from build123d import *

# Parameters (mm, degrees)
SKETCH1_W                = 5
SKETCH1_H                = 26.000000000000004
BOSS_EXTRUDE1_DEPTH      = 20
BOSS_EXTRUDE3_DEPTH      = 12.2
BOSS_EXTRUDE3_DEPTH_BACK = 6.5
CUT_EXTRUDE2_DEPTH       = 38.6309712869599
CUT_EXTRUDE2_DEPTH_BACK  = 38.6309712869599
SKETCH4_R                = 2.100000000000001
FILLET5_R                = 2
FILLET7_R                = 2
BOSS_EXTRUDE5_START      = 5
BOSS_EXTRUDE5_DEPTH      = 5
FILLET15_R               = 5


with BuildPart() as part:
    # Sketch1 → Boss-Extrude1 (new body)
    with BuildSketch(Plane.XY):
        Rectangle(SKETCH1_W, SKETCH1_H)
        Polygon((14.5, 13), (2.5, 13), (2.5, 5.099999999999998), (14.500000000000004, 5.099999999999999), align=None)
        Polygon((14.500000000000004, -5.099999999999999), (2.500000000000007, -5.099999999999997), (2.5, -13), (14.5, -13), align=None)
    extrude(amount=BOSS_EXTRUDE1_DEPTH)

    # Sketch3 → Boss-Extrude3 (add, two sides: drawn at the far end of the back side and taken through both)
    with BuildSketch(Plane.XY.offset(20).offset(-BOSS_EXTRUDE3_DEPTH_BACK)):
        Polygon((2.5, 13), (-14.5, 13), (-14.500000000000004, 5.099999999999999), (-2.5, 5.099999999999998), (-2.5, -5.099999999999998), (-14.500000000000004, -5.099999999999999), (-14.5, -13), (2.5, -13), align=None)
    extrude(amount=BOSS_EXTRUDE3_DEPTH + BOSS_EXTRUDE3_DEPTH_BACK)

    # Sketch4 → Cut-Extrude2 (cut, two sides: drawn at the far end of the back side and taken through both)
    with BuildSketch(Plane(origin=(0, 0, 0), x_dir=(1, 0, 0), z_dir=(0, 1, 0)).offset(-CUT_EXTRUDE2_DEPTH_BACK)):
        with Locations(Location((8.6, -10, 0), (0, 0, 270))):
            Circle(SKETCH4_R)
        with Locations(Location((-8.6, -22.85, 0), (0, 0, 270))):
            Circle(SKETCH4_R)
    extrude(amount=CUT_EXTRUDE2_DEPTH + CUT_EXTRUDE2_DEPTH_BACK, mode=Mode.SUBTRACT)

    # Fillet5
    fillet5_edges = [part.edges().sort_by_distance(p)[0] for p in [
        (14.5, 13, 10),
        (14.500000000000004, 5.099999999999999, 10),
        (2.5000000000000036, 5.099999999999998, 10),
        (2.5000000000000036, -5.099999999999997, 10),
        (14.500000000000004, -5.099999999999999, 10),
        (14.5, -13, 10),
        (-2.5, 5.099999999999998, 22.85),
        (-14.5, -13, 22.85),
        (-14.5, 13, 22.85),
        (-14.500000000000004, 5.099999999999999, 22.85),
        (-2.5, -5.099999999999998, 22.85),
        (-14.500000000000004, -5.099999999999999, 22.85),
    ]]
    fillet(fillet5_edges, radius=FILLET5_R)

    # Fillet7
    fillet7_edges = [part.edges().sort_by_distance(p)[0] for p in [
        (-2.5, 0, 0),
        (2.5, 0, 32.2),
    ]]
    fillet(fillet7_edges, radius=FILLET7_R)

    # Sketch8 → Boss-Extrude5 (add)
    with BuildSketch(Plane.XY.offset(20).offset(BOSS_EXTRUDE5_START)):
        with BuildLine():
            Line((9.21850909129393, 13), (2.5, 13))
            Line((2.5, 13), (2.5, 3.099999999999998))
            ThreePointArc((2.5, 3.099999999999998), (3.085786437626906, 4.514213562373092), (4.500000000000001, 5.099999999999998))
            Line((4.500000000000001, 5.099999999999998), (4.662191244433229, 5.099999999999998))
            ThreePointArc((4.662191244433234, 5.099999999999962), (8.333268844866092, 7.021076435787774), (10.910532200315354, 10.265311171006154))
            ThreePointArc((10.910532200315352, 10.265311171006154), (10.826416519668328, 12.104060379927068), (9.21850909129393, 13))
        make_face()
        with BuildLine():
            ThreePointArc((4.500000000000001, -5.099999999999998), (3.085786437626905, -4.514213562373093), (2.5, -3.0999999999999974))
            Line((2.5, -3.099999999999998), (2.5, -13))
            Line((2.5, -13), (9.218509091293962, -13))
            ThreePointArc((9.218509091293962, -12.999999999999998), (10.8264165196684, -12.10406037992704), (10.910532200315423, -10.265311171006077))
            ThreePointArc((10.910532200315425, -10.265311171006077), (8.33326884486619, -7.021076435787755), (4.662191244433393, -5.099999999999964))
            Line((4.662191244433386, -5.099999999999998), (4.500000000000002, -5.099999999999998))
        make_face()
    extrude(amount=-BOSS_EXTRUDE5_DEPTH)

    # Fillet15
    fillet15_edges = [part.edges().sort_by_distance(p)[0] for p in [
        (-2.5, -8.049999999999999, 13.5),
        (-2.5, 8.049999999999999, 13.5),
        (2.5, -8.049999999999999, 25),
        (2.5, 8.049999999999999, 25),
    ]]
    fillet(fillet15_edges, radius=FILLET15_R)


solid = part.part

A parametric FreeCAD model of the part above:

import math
import FreeCAD as App
import Part
import Sketcher


def edges_at(feature, points):
    """Names of the edges that pass closest to the given points."""
    edges = feature.Shape.Edges
    near = lambda p: min(range(len(edges)), key=lambda i: edges[i].distToShape(Part.Vertex(*p))[0])
    return sorted({f"Edge{near(p) + 1}" for p in points})


def add_polygon(sketch, points):
    """Adds a closed chain of lines whose ends are joined by coincident constraints."""
    first, n = sketch.GeometryCount, len(points)
    for a, b in zip(points, points[1:] + points[:1]):
        sketch.addGeometry(Part.LineSegment(App.Vector(*a, 0), App.Vector(*b, 0)), False)
    for i in range(n):
        sketch.addConstraint(Sketcher.Constraint("Coincident", first + i, 2, first + (i + 1) % n, 1))

doc = App.newDocument("Part")
body = doc.addObject("PartDesign::Body", "Body")

sketch1 = doc.addObject("Sketcher::SketchObject", "Sketch")
body.addObject(sketch1)
sketch1.AttachmentSupport = (doc.XY_Plane, [""])
sketch1.MapMode = "FlatFace"
add_polygon(sketch1, [(-2, 13), (-2, -13), (14, -13), (14, -5), (2, -5), (2, 5), (14, 5), (14, 13)])
sketch1.addConstraint(Sketcher.Constraint("Vertical", 0))
sketch1.addConstraint(Sketcher.Constraint("Horizontal", 1))
sketch1.addConstraint(Sketcher.Constraint("Vertical", 2))
sketch1.addConstraint(Sketcher.Constraint("Horizontal", 3))
sketch1.addConstraint(Sketcher.Constraint("Vertical", 4))
sketch1.addConstraint(Sketcher.Constraint("Horizontal", 5))
sketch1.addConstraint(Sketcher.Constraint("Vertical", 6))
sketch1.addConstraint(Sketcher.Constraint("Horizontal", 7))
sketch1.addConstraint(Sketcher.Constraint("Symmetric", 2, 2, 5, 2, -1))
sketch1.addConstraint(Sketcher.Constraint("Equal", 2, 6))
sketch1.addConstraint(Sketcher.Constraint("DistanceX", 1, 1, 1, 2, 17.0))
sketch1.addConstraint(Sketcher.Constraint("DistanceX", 3, 2, 3, 1, 12.0))
sketch1.addConstraint(Sketcher.Constraint("DistanceY", 0, 2, 0, 1, 26.0))
sketch1.addConstraint(Sketcher.Constraint("DistanceY", 2, 1, 2, 2, 7.9))
sketch1.addConstraint(Sketcher.Constraint("DistanceX", 0, 2, -1, 1, 2.5))
pad1 = doc.addObject("PartDesign::Pad", "Pad")
body.addObject(pad1)
pad1.Profile = sketch1
pad1.Length = 20

sketch2 = doc.addObject("Sketcher::SketchObject", "Sketch001")
body.addObject(sketch2)
sketch2.AttachmentSupport = (doc.XY_Plane, [""])
sketch2.MapMode = "FlatFace"
sketch2.AttachmentOffset = App.Placement(App.Vector(0, 0, 20), App.Rotation())
add_polygon(sketch2, [(2, 13), (-14, 13), (-14, 5), (-2, 5), (-2, -5), (-14, -5), (-14, -13), (2, -13)])
sketch2.addConstraint(Sketcher.Constraint("Horizontal", 0))
sketch2.addConstraint(Sketcher.Constraint("Vertical", 1))
sketch2.addConstraint(Sketcher.Constraint("Horizontal", 2))
sketch2.addConstraint(Sketcher.Constraint("Vertical", 3))
sketch2.addConstraint(Sketcher.Constraint("Horizontal", 4))
sketch2.addConstraint(Sketcher.Constraint("Vertical", 5))
sketch2.addConstraint(Sketcher.Constraint("Horizontal", 6))
sketch2.addConstraint(Sketcher.Constraint("Vertical", 7))
sketch2.addConstraint(Sketcher.Constraint("Symmetric", 1, 2, 4, 2, -1))
sketch2.addConstraint(Sketcher.Constraint("Equal", 1, 5))
sketch2.addConstraint(Sketcher.Constraint("DistanceX", 0, 2, 0, 1, 17.0))
sketch2.addConstraint(Sketcher.Constraint("DistanceX", 2, 1, 2, 2, 12.0))
sketch2.addConstraint(Sketcher.Constraint("DistanceY", 7, 1, 7, 2, 26.0))
sketch2.addConstraint(Sketcher.Constraint("DistanceY", 1, 2, 1, 1, 7.9))
sketch2.addConstraint(Sketcher.Constraint("DistanceX", 0, 2, -1, 1, 14.5))
pad2 = doc.addObject("PartDesign::Pad", "Pad001")
body.addObject(pad2)
pad2.Profile = sketch2
pad2.Type = "TwoLengths"
pad2.Length = 12.2
pad2.Length2 = 6.5

sketch3 = doc.addObject("Sketcher::SketchObject", "Sketch002")
body.addObject(sketch3)
sketch3.AttachmentSupport = (doc.XZ_Plane, [""])
sketch3.MapMode = "FlatFace"
sketch3.addGeometry(Part.Circle(App.Vector(8.6, 10, 0), App.Vector(0, 0, 1), 2.1), False)
sketch3.addGeometry(Part.Circle(App.Vector(-8.6, 22.9, 0), App.Vector(0, 0, 1), 2.1), False)
sketch3.addConstraint(Sketcher.Constraint("Equal", 0, 1))
sketch3.addConstraint(Sketcher.Constraint("Diameter", 0, 4.2))
sketch3.addConstraint(Sketcher.Constraint("DistanceY", -1, 1, 0, 3, 10.0))
sketch3.addConstraint(Sketcher.Constraint("DistanceX", -1, 1, 0, 3, 8.6))
sketch3.addConstraint(Sketcher.Constraint("DistanceX", 1, 3, -1, 1, 8.6))
sketch3.addConstraint(Sketcher.Constraint("DistanceY", -1, 1, 1, 3, 22.85))
pocket1 = doc.addObject("PartDesign::Pocket", "Pocket")
body.addObject(pocket1)
pocket1.Profile = sketch3
pocket1.Type = "ThroughAll"
pocket1.Midplane = True
doc.recompute()

fillet = doc.addObject("PartDesign::Fillet", "Fillet")
body.addObject(fillet)
fillet.Base = (pocket1, edges_at(pocket1, [
    (14.5, 13, 10),
    (14.5, 5.1, 10),
    (2.5, 5.1, 10),
    (2.5, -5.1, 10),
    (14.5, -5.1, 10),
    (14.5, -13, 10),
    (-2.5, 5.1, 22.85),
    (-14.5, -13, 22.85),
    (-14.5, 13, 22.85),
    (-14.5, 5.1, 22.85),
    (-2.5, -5.1, 22.85),
    (-14.5, -5.1, 22.85),
]))
fillet.Radius = 2
doc.recompute()

fillet2 = doc.addObject("PartDesign::Fillet", "Fillet001")
body.addObject(fillet2)
fillet2.Base = (fillet, edges_at(fillet, [(-2.5, 0, 0), (2.5, 0, 32.2)]))
fillet2.Radius = 2

sketch4 = doc.addObject("Sketcher::SketchObject", "Sketch003")
body.addObject(sketch4)
sketch4.AttachmentSupport = (doc.XY_Plane, [""])
sketch4.MapMode = "FlatFace"
sketch4.AttachmentOffset = App.Placement(App.Vector(0, 0, 25), App.Rotation())
sketch4.addGeometry(Part.LineSegment(App.Vector(9.22, 13, 0), App.Vector(2.5, 13, 0)), False)
sketch4.addGeometry(Part.LineSegment(App.Vector(2.5, 13, 0), App.Vector(2.5, 3.1, 0)), False)
sketch4.addGeometry(Part.ArcOfCircle(Part.Circle(App.Vector(4.5, 3.1, 0), App.Vector(0, 0, 1), 2), math.radians(90), math.radians(180)), False)
sketch4.addGeometry(Part.LineSegment(App.Vector(4.5, 5.1, 0), App.Vector(4.66, 5.1, 0)), False)
sketch4.addGeometry(Part.ArcOfCircle(Part.Circle(App.Vector(1.96, 14.73, 0), App.Vector(0, 0, 1), 10), math.radians(-74), math.radians(-27)), False)
sketch4.addGeometry(Part.ArcOfCircle(Part.Circle(App.Vector(9.22, 11.11, 0), App.Vector(0, 0, 1), 1.89), math.radians(-27), math.radians(90)), False)
sketch4.addGeometry(Part.ArcOfCircle(Part.Circle(App.Vector(4.5, -3.1, 0), App.Vector(0, 0, 1), 2), math.radians(180), math.radians(270)), False)
sketch4.addGeometry(Part.LineSegment(App.Vector(2.5, -3.1, 0), App.Vector(2.5, -13, 0)), False)
sketch4.addGeometry(Part.LineSegment(App.Vector(2.5, -13, 0), App.Vector(9.22, -13, 0)), False)
sketch4.addGeometry(Part.ArcOfCircle(Part.Circle(App.Vector(9.22, -11.11, 0), App.Vector(0, 0, 1), 1.89), math.radians(-90), math.radians(27)), False)
sketch4.addGeometry(Part.ArcOfCircle(Part.Circle(App.Vector(1.96, -14.73, 0), App.Vector(0, 0, 1), 10), math.radians(27), math.radians(74)), False)
sketch4.addGeometry(Part.LineSegment(App.Vector(4.66, -5.1, 0), App.Vector(4.5, -5.1, 0)), False)
sketch4.addConstraint(Sketcher.Constraint("Coincident", 0, 2, 1, 1))
sketch4.addConstraint(Sketcher.Constraint("Tangent", 1, 2, 2, 2))
sketch4.addConstraint(Sketcher.Constraint("Tangent", 2, 1, 3, 1))
sketch4.addConstraint(Sketcher.Constraint("Coincident", 3, 2, 4, 1))
sketch4.addConstraint(Sketcher.Constraint("Tangent", 4, 2, 5, 1))
sketch4.addConstraint(Sketcher.Constraint("Tangent", 5, 2, 0, 1))
sketch4.addConstraint(Sketcher.Constraint("Tangent", 6, 1, 7, 1))
sketch4.addConstraint(Sketcher.Constraint("Coincident", 7, 2, 8, 1))
sketch4.addConstraint(Sketcher.Constraint("Tangent", 8, 2, 9, 1))
sketch4.addConstraint(Sketcher.Constraint("Tangent", 9, 2, 10, 1))
sketch4.addConstraint(Sketcher.Constraint("Coincident", 10, 2, 11, 1))
sketch4.addConstraint(Sketcher.Constraint("Tangent", 11, 2, 6, 2))
sketch4.addConstraint(Sketcher.Constraint("Horizontal", 0))
sketch4.addConstraint(Sketcher.Constraint("Vertical", 1))
sketch4.addConstraint(Sketcher.Constraint("Horizontal", 3))
sketch4.addConstraint(Sketcher.Constraint("Vertical", 7))
sketch4.addConstraint(Sketcher.Constraint("Horizontal", 8))
sketch4.addConstraint(Sketcher.Constraint("Horizontal", 11))
sketch4.addConstraint(Sketcher.Constraint("Equal", 2, 6))
sketch4.addConstraint(Sketcher.Constraint("Equal", 5, 9))
sketch4.addConstraint(Sketcher.Constraint("Equal", 4, 10))
sketch4.addConstraint(Sketcher.Constraint("Symmetric", 2, 3, 6, 3, -1))
sketch4.addConstraint(Sketcher.Constraint("Symmetric", 5, 3, 9, 3, -1))
sketch4.addConstraint(Sketcher.Constraint("Vertical", 4, 3, 10, 3))
sketch4.addConstraint(Sketcher.Constraint("Radius", 2, 2.0))
sketch4.addConstraint(Sketcher.Constraint("Radius", 4, 10.0))
sketch4.addConstraint(Sketcher.Constraint("DistanceY", 1, 2, 1, 1, 9.9))
sketch4.addConstraint(Sketcher.Constraint("DistanceY", -1, 1, 0, 2, 13.0))
sketch4.addConstraint(Sketcher.Constraint("DistanceX", -1, 1, 2, 3, 4.5))
sketch4.addConstraint(Sketcher.Constraint("Radius", 5, 1.890794))
sketch4.addConstraint(Sketcher.Constraint("DistanceX", 0, 2, 0, 1, 6.718509))
sketch4.addConstraint(Sketcher.Constraint("DistanceX", 3, 1, 3, 2, 0.162191))
pad3 = doc.addObject("PartDesign::Pad", "Pad002")
body.addObject(pad3)
pad3.Profile = sketch4
pad3.Length = 5
pad3.Reversed = True
doc.recompute()

fillet3 = doc.addObject("PartDesign::Fillet", "Fillet002")
body.addObject(fillet3)
fillet3.Base = (pad3, edges_at(pad3, [
    (-2.5, -8.05, 13.5),
    (-2.5, 8.05, 13.5),
    (2.5, -8.05, 25),
    (2.5, 8.05, 25),
]))
fillet3.Radius = 5

doc.recompute()
